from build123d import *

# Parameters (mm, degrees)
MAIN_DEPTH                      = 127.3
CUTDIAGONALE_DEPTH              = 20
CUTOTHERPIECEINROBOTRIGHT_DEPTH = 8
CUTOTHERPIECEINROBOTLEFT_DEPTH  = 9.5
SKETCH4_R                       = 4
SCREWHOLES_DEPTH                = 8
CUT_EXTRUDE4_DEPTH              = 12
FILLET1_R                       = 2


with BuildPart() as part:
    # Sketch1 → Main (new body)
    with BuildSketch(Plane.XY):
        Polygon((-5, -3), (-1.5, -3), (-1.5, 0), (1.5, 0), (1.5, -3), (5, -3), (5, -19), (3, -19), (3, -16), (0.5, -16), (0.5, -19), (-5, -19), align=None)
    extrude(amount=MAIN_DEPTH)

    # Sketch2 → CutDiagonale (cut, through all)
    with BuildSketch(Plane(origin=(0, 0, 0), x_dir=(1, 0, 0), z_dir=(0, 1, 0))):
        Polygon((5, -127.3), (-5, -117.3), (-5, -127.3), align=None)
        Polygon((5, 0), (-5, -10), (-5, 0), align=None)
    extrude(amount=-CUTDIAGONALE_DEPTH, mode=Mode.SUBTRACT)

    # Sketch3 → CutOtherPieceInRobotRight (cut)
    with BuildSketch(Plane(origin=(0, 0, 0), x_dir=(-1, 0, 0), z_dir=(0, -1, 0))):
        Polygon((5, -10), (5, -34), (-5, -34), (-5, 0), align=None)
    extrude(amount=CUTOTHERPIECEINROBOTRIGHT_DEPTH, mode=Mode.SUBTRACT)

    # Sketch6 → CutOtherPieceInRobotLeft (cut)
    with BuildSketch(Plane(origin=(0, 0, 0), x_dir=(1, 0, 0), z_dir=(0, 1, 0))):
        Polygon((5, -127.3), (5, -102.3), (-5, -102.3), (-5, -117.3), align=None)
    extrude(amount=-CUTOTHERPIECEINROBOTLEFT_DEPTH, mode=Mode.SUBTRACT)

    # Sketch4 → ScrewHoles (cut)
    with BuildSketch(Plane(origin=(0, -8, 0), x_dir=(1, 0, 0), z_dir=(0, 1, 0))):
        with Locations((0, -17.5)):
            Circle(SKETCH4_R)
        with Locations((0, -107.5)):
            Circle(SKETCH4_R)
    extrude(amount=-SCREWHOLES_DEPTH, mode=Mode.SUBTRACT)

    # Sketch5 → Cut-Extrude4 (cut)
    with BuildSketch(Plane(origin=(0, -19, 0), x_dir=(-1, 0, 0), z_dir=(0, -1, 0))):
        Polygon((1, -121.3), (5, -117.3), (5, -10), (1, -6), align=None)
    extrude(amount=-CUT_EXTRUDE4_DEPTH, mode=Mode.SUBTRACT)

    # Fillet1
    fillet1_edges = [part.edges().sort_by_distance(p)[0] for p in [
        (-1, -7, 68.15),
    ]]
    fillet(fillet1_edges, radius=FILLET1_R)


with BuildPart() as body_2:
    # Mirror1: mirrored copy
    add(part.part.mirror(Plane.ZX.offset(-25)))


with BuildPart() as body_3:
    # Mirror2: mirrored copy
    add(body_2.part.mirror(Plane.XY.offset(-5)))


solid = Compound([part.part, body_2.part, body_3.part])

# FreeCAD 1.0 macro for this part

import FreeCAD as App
import Part
import Sketcher
Q = App.Units.Quantity


def edges_at(feature, points):
    """Names of the edges that pass closest to the given points."""
    edges = feature.Shape.Edges
    near = lambda p: min(range(len(edges)), key=lambda i: edges[i].distToShape(Part.Vertex(*p))[0])
    return sorted({f"Edge{near(p) + 1}" for p in points})

doc = App.newDocument("Part")
body = doc.addObject("PartDesign::Body", "Body")

# Sketch on XY plane
sketch1 = body.newObject("Sketcher::SketchObject", "Sketch")
sketch1.AttachmentSupport = (doc.getObject("XY_Plane"), [""])
sketch1.MapMode = "FlatFace"
sketch1.addGeometry([
    Part.LineSegment(App.Vector(-1.5, -3, 0), App.Vector(-5, -3, 0)),  # 0
    Part.LineSegment(App.Vector(-5, -3, 0), App.Vector(-5, -19, 0)),  # 1
    Part.LineSegment(App.Vector(-5, -19, 0), App.Vector(0.5, -19, 0)),  # 2
    Part.LineSegment(App.Vector(0.5, -19, 0), App.Vector(0.5, -16, 0)),  # 3
    Part.LineSegment(App.Vector(0.5, -16, 0), App.Vector(3, -16, 0)),  # 4
    Part.LineSegment(App.Vector(3, -16, 0), App.Vector(3, -19, 0)),  # 5
    Part.LineSegment(App.Vector(3, -19, 0), App.Vector(5, -19, 0)),  # 6
    Part.LineSegment(App.Vector(5, -19, 0), App.Vector(5, -3, 0)),  # 7
    Part.LineSegment(App.Vector(5, -3, 0), App.Vector(1.5, -3, 0)),  # 8
    Part.LineSegment(App.Vector(1.5, -3, 0), App.Vector(1.5, 0, 0)),  # 9
    Part.LineSegment(App.Vector(1.5, 0, 0), App.Vector(-1.5, 0, 0)),  # 10
    Part.LineSegment(App.Vector(-1.5, 0, 0), App.Vector(-1.5, -3, 0)),  # 11
], False)
sketch1.addConstraint([
    Sketcher.Constraint("Coincident", 0, 2, 1, 1),
    Sketcher.Constraint("Coincident", 1, 2, 2, 1),
    Sketcher.Constraint("Coincident", 2, 2, 3, 1),
    Sketcher.Constraint("Coincident", 3, 2, 4, 1),
    Sketcher.Constraint("Coincident", 4, 2, 5, 1),
    Sketcher.Constraint("Coincident", 5, 2, 6, 1),
    Sketcher.Constraint("Coincident", 6, 2, 7, 1),
    Sketcher.Constraint("Coincident", 7, 2, 8, 1),
    Sketcher.Constraint("Coincident", 8, 2, 9, 1),
    Sketcher.Constraint("Coincident", 9, 2, 10, 1),
    Sketcher.Constraint("Coincident", 10, 2, 11, 1),
    Sketcher.Constraint("Coincident", 11, 2, 0, 1),
    Sketcher.Constraint("Horizontal", 0),
    Sketcher.Constraint("Vertical", 1),
    Sketcher.Constraint("Horizontal", 2),
    Sketcher.Constraint("Vertical", 3),
    Sketcher.Constraint("Horizontal", 4),
    Sketcher.Constraint("Vertical", 5),
    Sketcher.Constraint("Horizontal", 6),
    Sketcher.Constraint("Vertical", 7),
    Sketcher.Constraint("Horizontal", 8),
    Sketcher.Constraint("Vertical", 9),
    Sketcher.Constraint("Horizontal", 10),
    Sketcher.Constraint("Vertical", 11),
    Sketcher.Constraint("Symmetric", 9, 2, 10, 2, -1, 1),
    Sketcher.Constraint("Symmetric", 1, 2, 6, 2, -2),
    Sketcher.Constraint("Horizontal", 0, 2, 7, 2),
    Sketcher.Constraint("Equal", 10, 3),
    Sketcher.Constraint("Equal", 5, 9),
    Sketcher.Constraint("DistanceX", 6, 1, 6, 2, Q("2 mm")),
    Sketcher.Constraint("DistanceX", 10, 2, 10, 1, Q("3 mm")),
    Sketcher.Constraint("DistanceY", 1, 2, 1, 1, Q("16 mm")),
    Sketcher.Constraint("DistanceX", 0, 2, 0, 1, Q("3.5 mm")),
    Sketcher.Constraint("DistanceX", 2, 1, 2, 2, Q("5.5 mm")),
])
pad1 = body.newObject("PartDesign::Pad", "Pad")
pad1.Profile = sketch1
pad1.Length = 127.3

# Sketch on XZ plane
sketch2 = body.newObject("Sketcher::SketchObject", "Sketch001")
sketch2.AttachmentSupport = (doc.getObject("XZ_Plane"), [""])
sketch2.MapMode = "FlatFace"
sketch2.addGeometry([
    Part.LineSegment(App.Vector(5, 127, 0), App.Vector(-5, 117, 0)),  # 0
    Part.LineSegment(App.Vector(-5, 117, 0), App.Vector(-5, 127, 0)),  # 1
    Part.LineSegment(App.Vector(-5, 127, 0), App.Vector(5, 127, 0)),  # 2
    Part.LineSegment(App.Vector(-5, 10, 0), App.Vector(5, 0, 0)),  # 3
    Part.LineSegment(App.Vector(5, 0, 0), App.Vector(-5, 0, 0)),  # 4
    Part.LineSegment(App.Vector(-5, 0, 0), App.Vector(-5, 10, 0)),  # 5
], False)
sketch2.addConstraint([
    Sketcher.Constraint("Coincident", 0, 2, 1, 1),
    Sketcher.Constraint("Coincident", 1, 2, 2, 1),
    Sketcher.Constraint("Coincident", 2, 2, 0, 1),
    Sketcher.Constraint("Coincident", 3, 2, 4, 1),
    Sketcher.Constraint("Coincident", 4, 2, 5, 1),
    Sketcher.Constraint("Coincident", 5, 2, 3, 1),
    Sketcher.Constraint("Vertical", 1),
    Sketcher.Constraint("Horizontal", 2),
    Sketcher.Constraint("Horizontal", 4),
    Sketcher.Constraint("Vertical", 5),
    Sketcher.Constraint("Symmetric", 3, 2, 4, 2, -1, 1),
    Sketcher.Constraint("Perpendicular", 0, 3),
    Sketcher.Constraint("Vertical", 2, 2, 3, 2),
    Sketcher.Constraint("Vertical", 1, 2, 4, 2),
    Sketcher.Constraint("Equal", 4, 1),
    Sketcher.Constraint("DistanceX", 2, 1, 2, 2, Q("10 mm")),
    Sketcher.Constraint("DistanceY", -1, 1, 0, 2, Q("117.3 mm")),
])
pocket1 = body.newObject("PartDesign::Pocket", "Pocket")
pocket1.Profile = sketch2
pocket1.Type = "ThroughAll"
pocket1.Reversed = True

# Sketch on XZ plane
sketch3 = body.newObject("Sketcher::SketchObject", "Sketch002")
sketch3.AttachmentSupport = (doc.getObject("XZ_Plane"), [""])
sketch3.MapMode = "FlatFace"
sketch3.addGeometry([
    Part.LineSegment(App.Vector(-5, 34, 0), App.Vector(-5, 10, 0)),
    Part.LineSegment(App.Vector(-5, 10, 0), App.Vector(5, 0, 0)),
    Part.LineSegment(App.Vector(5, 0, 0), App.Vector(5, 34, 0)),
    Part.LineSegment(App.Vector(5, 34, 0), App.Vector(-5, 34, 0)),
], False)
sketch3.addConstraint([
    Sketcher.Constraint("Coincident", 0, 2, 1, 1),
    Sketcher.Constraint("Coincident", 1, 2, 2, 1),
    Sketcher.Constraint("Coincident", 2, 2, 3, 1),
    Sketcher.Constraint("Coincident", 3, 2, 0, 1),
    Sketcher.Constraint("Vertical", 0),
    Sketcher.Constraint("Vertical", 2),
    Sketcher.Constraint("Horizontal", 3),
    Sketcher.Constraint("PointOnObject", 1, 2, -1),
    Sketcher.Constraint("DistanceX", 3, 2, 3, 1, Q("10 mm")),
    Sketcher.Constraint("DistanceY", 0, 2, 0, 1, Q("24 mm")),
    Sketcher.Constraint("DistanceY", 2, 1, 2, 2, Q("34 mm")),
    Sketcher.Constraint("DistanceX", 0, 2, -1, 1, Q("5 mm")),
])
pocket2 = body.newObject("PartDesign::Pocket", "Pocket001")
pocket2.Profile = sketch3
pocket2.Length = 8
pocket2.Reversed = True

# Sketch on XZ plane
sketch4 = body.newObject("Sketcher::SketchObject", "Sketch003")
sketch4.AttachmentSupport = (doc.getObject("XZ_Plane"), [""])
sketch4.MapMode = "FlatFace"
sketch4.addGeometry([
    Part.LineSegment(App.Vector(5, 127, 0), App.Vector(5, 102, 0)),
    Part.LineSegment(App.Vector(5, 102, 0), App.Vector(-5, 102, 0)),
    Part.LineSegment(App.Vector(-5, 102, 0), App.Vector(-5, 117, 0)),
    Part.LineSegment(App.Vector(-5, 117, 0), App.Vector(5, 127, 0)),
], False)
sketch4.addConstraint([
    Sketcher.Constraint("Coincident", 0, 2, 1, 1),
    Sketcher.Constraint("Coincident", 1, 2, 2, 1),
    Sketcher.Constraint("Coincident", 2, 2, 3, 1),
    Sketcher.Constraint("Coincident", 3, 2, 0, 1),
    Sketcher.Constraint("Vertical", 0),
    Sketcher.Constraint("Horizontal", 1),
    Sketcher.Constraint("Vertical", 2),
    Sketcher.Constraint("DistanceX", 1, 2, 1, 1, Q("10 mm")),
    Sketcher.Constraint("DistanceY", 0, 2, 0, 1, Q("25 mm")),
    Sketcher.Constraint("DistanceY", 2, 1, 2, 2, Q("15 mm")),
    Sketcher.Constraint("DistanceX", -1, 1, 0, 2, Q("5 mm")),
    Sketcher.Constraint("DistanceY", -1, 1, 0, 2, Q("102.3 mm")),
])
pocket3 = body.newObject("PartDesign::Pocket", "Pocket002")
pocket3.Profile = sketch4
pocket3.Length = 9.5
pocket3.Reversed = True

# Sketch on XZ plane
sketch5 = body.newObject("Sketcher::SketchObject", "Sketch004")
sketch5.AttachmentSupport = (doc.getObject("XZ_Plane"), [""])
sketch5.MapMode = "FlatFace"
sketch5.AttachmentOffset = App.Placement(App.Vector(0, 0, 8), App.Rotation())
sketch5.addGeometry([
    Part.Circle(App.Vector(0, 17.5, 0), App.Vector(0, 0, 1), 4),
    Part.Circle(App.Vector(0, 107.5, 0), App.Vector(0, 0, 1), 4),
], False)
sketch5.addConstraint([
    Sketcher.Constraint("Equal", 0, 1),
    Sketcher.Constraint("PointOnObject", 0, 3, -2),
    Sketcher.Constraint("PointOnObject", 1, 3, -2),
    Sketcher.Constraint("Diameter", 0, Q("8 mm")),
    Sketcher.Constraint("DistanceY", 0, 3, 1, 3, Q("90 mm")),
    Sketcher.Constraint("DistanceY", -1, 1, 0, 3, Q("17.5 mm")),
])
pocket4 = body.newObject("PartDesign::Pocket", "Pocket003")
pocket4.Profile = sketch5
pocket4.Length = 8
pocket4.Reversed = True

# Sketch on XZ plane
sketch6 = body.newObject("Sketcher::SketchObject", "Sketch005")
sketch6.AttachmentSupport = (doc.getObject("XZ_Plane"), [""])
sketch6.MapMode = "FlatFace"
sketch6.AttachmentOffset = App.Placement(App.Vector(0, 0, 19), App.Rotation())
sketch6.addGeometry([
    Part.LineSegment(App.Vector(-1, 121, 0), App.Vector(-5, 117, 0)),
    Part.LineSegment(App.Vector(-5, 117, 0), App.Vector(-5, 10, 0)),
    Part.LineSegment(App.Vector(-5, 10, 0), App.Vector(-1, 6, 0)),
    Part.LineSegment(App.Vector(-1, 6, 0), App.Vector(-1, 121, 0)),
], False)
sketch6.addConstraint([
    Sketcher.Constraint("Coincident", 0, 2, 1, 1),
    Sketcher.Constraint("Coincident", 1, 2, 2, 1),
    Sketcher.Constraint("Coincident", 2, 2, 3, 1),
    Sketcher.Constraint("Coincident", 3, 2, 0, 1),
    Sketcher.Constraint("Vertical", 1),
    Sketcher.Constraint("Vertical", 3),
    Sketcher.Constraint("Perpendicular", 0, 2),
    Sketcher.Constraint("Equal", 0, 2),
    Sketcher.Constraint("DistanceY", 1, 2, 1, 1, Q("107.3 mm")),
    Sketcher.Constraint("DistanceY", 3, 1, 3, 2, Q("115.3 mm")),
    Sketcher.Constraint("DistanceX", 0, 2, -1, 1, Q("5 mm")),
    Sketcher.Constraint("DistanceY", -1, 1, 1, 2, Q("10 mm")),
])
pocket5 = body.newObject("PartDesign::Pocket", "Pocket004")
pocket5.Profile = sketch6
pocket5.Length = 12
doc.recompute()

fillet = body.newObject("PartDesign::Fillet", "Fillet")
fillet.Base = (pocket5, edges_at(pocket5, [(-1, -7, 68.15)]))
fillet.Radius = 2
body2 = doc.addObject("PartDesign::Body", "Body001")
doc.recompute()

mirroring = doc.addObject("Part::Mirroring", "Mirroring")
mirroring.Source = body
mirroring.Base = App.Vector(0, -25, 0)
mirroring.Normal = App.Vector(0, 1, 0)
body2.BaseFeature = mirroring
doc.recompute()
body3 = doc.addObject("PartDesign::Body", "Body002")
doc.recompute()

mirroring2 = doc.addObject("Part::Mirroring", "Mirroring001")
mirroring2.Source = body2
mirroring2.Base = App.Vector(0, 0, -5)
mirroring2.Normal = App.Vector(0, 0, 1)
body3.BaseFeature = mirroring2
doc.recompute()
mirroring.Visibility = False
mirroring2.Visibility = False

doc.recompute()
